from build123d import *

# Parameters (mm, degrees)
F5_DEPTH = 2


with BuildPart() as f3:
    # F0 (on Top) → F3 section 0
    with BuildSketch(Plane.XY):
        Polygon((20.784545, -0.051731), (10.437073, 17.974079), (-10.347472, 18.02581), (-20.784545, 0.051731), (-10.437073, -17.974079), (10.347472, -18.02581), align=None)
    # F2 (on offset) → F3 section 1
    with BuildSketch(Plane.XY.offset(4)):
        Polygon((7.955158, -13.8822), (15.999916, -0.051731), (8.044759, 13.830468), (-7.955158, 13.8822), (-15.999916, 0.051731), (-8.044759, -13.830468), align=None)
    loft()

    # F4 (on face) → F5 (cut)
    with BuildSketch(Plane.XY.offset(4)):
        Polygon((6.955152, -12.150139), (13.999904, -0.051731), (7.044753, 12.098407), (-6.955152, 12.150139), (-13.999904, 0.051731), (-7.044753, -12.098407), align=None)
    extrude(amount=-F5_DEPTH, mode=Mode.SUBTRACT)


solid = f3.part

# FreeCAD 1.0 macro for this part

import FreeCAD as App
import Part
import Sketcher

doc = App.newDocument("Part")
body = doc.addObject("PartDesign::Body", "Body")

sketch1 = body.newObject("Sketcher::SketchObject", "Sketch")
sketch1.AttachmentSupport = (doc.getObject("XY_Plane"), [""])
sketch1.MapMode = "FlatFace"
sketch1.addGeometry(Part.LineSegment(App.Vector(21, 0, 0), App.Vector(10, 18, 0)), False)
sketch1.addGeometry(Part.LineSegment(App.Vector(10, 18, 0), App.Vector(-10, 18, 0)), False)
sketch1.addGeometry(Part.LineSegment(App.Vector(-10, 18, 0), App.Vector(-21, 0, 0)), False)
sketch1.addGeometry(Part.LineSegment(App.Vector(-21, 0, 0), App.Vector(-10, -18, 0)), False)
sketch1.addGeometry(Part.LineSegment(App.Vector(-10, -18, 0), App.Vector(10, -18, 0)), False)
sketch1.addGeometry(Part.LineSegment(App.Vector(10, -18, 0), App.Vector(21, 0, 0)), False)
sketch1.addConstraint(Sketcher.Constraint("Coincident", 0, 2, 1, 1))
sketch1.addConstraint(Sketcher.Constraint("Coincident", 1, 2, 2, 1))
sketch1.addConstraint(Sketcher.Constraint("Coincident", 2, 2, 3, 1))
sketch1.addConstraint(Sketcher.Constraint("Coincident", 3, 2, 4, 1))
sketch1.addConstraint(Sketcher.Constraint("Coincident", 4, 2, 5, 1))
sketch1.addConstraint(Sketcher.Constraint("Coincident", 5, 2, 0, 1))
sketch1.addConstraint(Sketcher.Constraint("Symmetric", 0, 2, 3, 2, -1, 1))
sketch1.addConstraint(Sketcher.Constraint("Symmetric", 1, 2, 4, 2, -1, 1))
sketch1.addConstraint(Sketcher.Constraint("Symmetric", 2, 2, 5, 2, -1, 1))
sketch1.addConstraint(Sketcher.Constraint("Equal", 0, 1))
sketch1.addConstraint(Sketcher.Constraint("Equal", 1, 2))
sketch1.addConstraint(Sketcher.Constraint("DistanceX", 3, 2, 1, 2, 0.089601))
sketch1.addConstraint(Sketcher.Constraint("Distance", 0, 20.78461))
sketch1.addConstraint(Sketcher.Constraint("DistanceY", -1, 1, 0, 2, 17.974079))
sketch1.addConstraint(Sketcher.Constraint("DistanceY", -1, 1, 1, 2, 18.02581))

sketch2 = body.newObject("Sketcher::SketchObject", "Sketch001")
sketch2.AttachmentSupport = (doc.getObject("XY_Plane"), [""])
sketch2.MapMode = "FlatFace"
sketch2.AttachmentOffset = App.Placement(App.Vector(0, 0, 4), App.Rotation())
sketch2.addGeometry(Part.LineSegment(App.Vector(8, -14, 0), App.Vector(16, 0, 0)), False)
sketch2.addGeometry(Part.LineSegment(App.Vector(16, 0, 0), App.Vector(8, 14, 0)), False)
sketch2.addGeometry(Part.LineSegment(App.Vector(8, 14, 0), App.Vector(-8, 14, 0)), False)
sketch2.addGeometry(Part.LineSegment(App.Vector(-8, 14, 0), App.Vector(-16, 0, 0)), False)
sketch2.addGeometry(Part.LineSegment(App.Vector(-16, 0, 0), App.Vector(-8, -14, 0)), False)
sketch2.addGeometry(Part.LineSegment(App.Vector(-8, -14, 0), App.Vector(8, -14, 0)), False)
sketch2.addConstraint(Sketcher.Constraint("Coincident", 0, 2, 1, 1))
sketch2.addConstraint(Sketcher.Constraint("Coincident", 1, 2, 2, 1))
sketch2.addConstraint(Sketcher.Constraint("Coincident", 2, 2, 3, 1))
sketch2.addConstraint(Sketcher.Constraint("Coincident", 3, 2, 4, 1))
sketch2.addConstraint(Sketcher.Constraint("Coincident", 4, 2, 5, 1))
sketch2.addConstraint(Sketcher.Constraint("Coincident", 5, 2, 0, 1))
sketch2.addConstraint(Sketcher.Constraint("Symmetric", 0, 2, 3, 2, -1, 1))
sketch2.addConstraint(Sketcher.Constraint("Symmetric", 1, 2, 4, 2, -1, 1))
sketch2.addConstraint(Sketcher.Constraint("Symmetric", 2, 2, 5, 2, -1, 1))
sketch2.addConstraint(Sketcher.Constraint("Equal", 0, 1))
sketch2.addConstraint(Sketcher.Constraint("Equal", 1, 2))
sketch2.addConstraint(Sketcher.Constraint("Distance", 0, 16.0))
sketch2.addConstraint(Sketcher.Constraint("DistanceY", -1, 1, 2, 2, 13.8822))
sketch2.addConstraint(Sketcher.Constraint("DistanceY", 0, 2, 1, 2, 13.882199))
sketch2.addConstraint(Sketcher.Constraint("DistanceX", 4, 2, 2, 2, 0.089601))

additiveloft = body.newObject("PartDesign::AdditiveLoft", "AdditiveLoft")
additiveloft.Profile = sketch1
additiveloft.Sections = [sketch2]

sketch3 = body.newObject("Sketcher::SketchObject", "Sketch002")
sketch3.AttachmentSupport = (doc.getObject("XY_Plane"), [""])
sketch3.MapMode = "FlatFace"
sketch3.AttachmentOffset = App.Placement(App.Vector(0, 0, 4), App.Rotation())
sketch3.addGeometry(Part.LineSegment(App.Vector(7, -12, 0), App.Vector(14, 0, 0)), False)
sketch3.addGeometry(Part.LineSegment(App.Vector(14, 0, 0), App.Vector(7, 12, 0)), False)
sketch3.addGeometry(Part.LineSegment(App.Vector(7, 12, 0), App.Vector(-7, 12, 0)), False)
sketch3.addGeometry(Part.LineSegment(App.Vector(-7, 12, 0), App.Vector(-14, 0, 0)), False)
sketch3.addGeometry(Part.LineSegment(App.Vector(-14, 0, 0), App.Vector(-7, -12, 0)), False)
sketch3.addGeometry(Part.LineSegment(App.Vector(-7, -12, 0), App.Vector(7, -12, 0)), False)
sketch3.addConstraint(Sketcher.Constraint("Coincident", 0, 2, 1, 1))
sketch3.addConstraint(Sketcher.Constraint("Coincident", 1, 2, 2, 1))
sketch3.addConstraint(Sketcher.Constraint("Coincident", 2, 2, 3, 1))
sketch3.addConstraint(Sketcher.Constraint("Coincident", 3, 2, 4, 1))
sketch3.addConstraint(Sketcher.Constraint("Coincident", 4, 2, 5, 1))
sketch3.addConstraint(Sketcher.Constraint("Coincident", 5, 2, 0, 1))
sketch3.addConstraint(Sketcher.Constraint("Symmetric", 0, 2, 3, 2, -1, 1))
sketch3.addConstraint(Sketcher.Constraint("Symmetric", 1, 2, 4, 2, -1, 1))
sketch3.addConstraint(Sketcher.Constraint("Symmetric", 2, 2, 5, 2, -1, 1))
sketch3.addConstraint(Sketcher.Constraint("Equal", 0, 1))
sketch3.addConstraint(Sketcher.Constraint("Equal", 1, 2))
sketch3.addConstraint(Sketcher.Constraint("Distance", 0, 14.0))
sketch3.addConstraint(Sketcher.Constraint("DistanceX", 4, 2, 2, 2, 0.089601))
sketch3.addConstraint(Sketcher.Constraint("DistanceY", 0, 2, -1, 1, 0.051731))
sketch3.addConstraint(Sketcher.Constraint("DistanceY", -1, 1, 2, 2, 12.150139))
pocket1 = body.newObject("PartDesign::Pocket", "Pocket")
pocket1.Profile = sketch3
pocket1.Length = 2

doc.recompute()
